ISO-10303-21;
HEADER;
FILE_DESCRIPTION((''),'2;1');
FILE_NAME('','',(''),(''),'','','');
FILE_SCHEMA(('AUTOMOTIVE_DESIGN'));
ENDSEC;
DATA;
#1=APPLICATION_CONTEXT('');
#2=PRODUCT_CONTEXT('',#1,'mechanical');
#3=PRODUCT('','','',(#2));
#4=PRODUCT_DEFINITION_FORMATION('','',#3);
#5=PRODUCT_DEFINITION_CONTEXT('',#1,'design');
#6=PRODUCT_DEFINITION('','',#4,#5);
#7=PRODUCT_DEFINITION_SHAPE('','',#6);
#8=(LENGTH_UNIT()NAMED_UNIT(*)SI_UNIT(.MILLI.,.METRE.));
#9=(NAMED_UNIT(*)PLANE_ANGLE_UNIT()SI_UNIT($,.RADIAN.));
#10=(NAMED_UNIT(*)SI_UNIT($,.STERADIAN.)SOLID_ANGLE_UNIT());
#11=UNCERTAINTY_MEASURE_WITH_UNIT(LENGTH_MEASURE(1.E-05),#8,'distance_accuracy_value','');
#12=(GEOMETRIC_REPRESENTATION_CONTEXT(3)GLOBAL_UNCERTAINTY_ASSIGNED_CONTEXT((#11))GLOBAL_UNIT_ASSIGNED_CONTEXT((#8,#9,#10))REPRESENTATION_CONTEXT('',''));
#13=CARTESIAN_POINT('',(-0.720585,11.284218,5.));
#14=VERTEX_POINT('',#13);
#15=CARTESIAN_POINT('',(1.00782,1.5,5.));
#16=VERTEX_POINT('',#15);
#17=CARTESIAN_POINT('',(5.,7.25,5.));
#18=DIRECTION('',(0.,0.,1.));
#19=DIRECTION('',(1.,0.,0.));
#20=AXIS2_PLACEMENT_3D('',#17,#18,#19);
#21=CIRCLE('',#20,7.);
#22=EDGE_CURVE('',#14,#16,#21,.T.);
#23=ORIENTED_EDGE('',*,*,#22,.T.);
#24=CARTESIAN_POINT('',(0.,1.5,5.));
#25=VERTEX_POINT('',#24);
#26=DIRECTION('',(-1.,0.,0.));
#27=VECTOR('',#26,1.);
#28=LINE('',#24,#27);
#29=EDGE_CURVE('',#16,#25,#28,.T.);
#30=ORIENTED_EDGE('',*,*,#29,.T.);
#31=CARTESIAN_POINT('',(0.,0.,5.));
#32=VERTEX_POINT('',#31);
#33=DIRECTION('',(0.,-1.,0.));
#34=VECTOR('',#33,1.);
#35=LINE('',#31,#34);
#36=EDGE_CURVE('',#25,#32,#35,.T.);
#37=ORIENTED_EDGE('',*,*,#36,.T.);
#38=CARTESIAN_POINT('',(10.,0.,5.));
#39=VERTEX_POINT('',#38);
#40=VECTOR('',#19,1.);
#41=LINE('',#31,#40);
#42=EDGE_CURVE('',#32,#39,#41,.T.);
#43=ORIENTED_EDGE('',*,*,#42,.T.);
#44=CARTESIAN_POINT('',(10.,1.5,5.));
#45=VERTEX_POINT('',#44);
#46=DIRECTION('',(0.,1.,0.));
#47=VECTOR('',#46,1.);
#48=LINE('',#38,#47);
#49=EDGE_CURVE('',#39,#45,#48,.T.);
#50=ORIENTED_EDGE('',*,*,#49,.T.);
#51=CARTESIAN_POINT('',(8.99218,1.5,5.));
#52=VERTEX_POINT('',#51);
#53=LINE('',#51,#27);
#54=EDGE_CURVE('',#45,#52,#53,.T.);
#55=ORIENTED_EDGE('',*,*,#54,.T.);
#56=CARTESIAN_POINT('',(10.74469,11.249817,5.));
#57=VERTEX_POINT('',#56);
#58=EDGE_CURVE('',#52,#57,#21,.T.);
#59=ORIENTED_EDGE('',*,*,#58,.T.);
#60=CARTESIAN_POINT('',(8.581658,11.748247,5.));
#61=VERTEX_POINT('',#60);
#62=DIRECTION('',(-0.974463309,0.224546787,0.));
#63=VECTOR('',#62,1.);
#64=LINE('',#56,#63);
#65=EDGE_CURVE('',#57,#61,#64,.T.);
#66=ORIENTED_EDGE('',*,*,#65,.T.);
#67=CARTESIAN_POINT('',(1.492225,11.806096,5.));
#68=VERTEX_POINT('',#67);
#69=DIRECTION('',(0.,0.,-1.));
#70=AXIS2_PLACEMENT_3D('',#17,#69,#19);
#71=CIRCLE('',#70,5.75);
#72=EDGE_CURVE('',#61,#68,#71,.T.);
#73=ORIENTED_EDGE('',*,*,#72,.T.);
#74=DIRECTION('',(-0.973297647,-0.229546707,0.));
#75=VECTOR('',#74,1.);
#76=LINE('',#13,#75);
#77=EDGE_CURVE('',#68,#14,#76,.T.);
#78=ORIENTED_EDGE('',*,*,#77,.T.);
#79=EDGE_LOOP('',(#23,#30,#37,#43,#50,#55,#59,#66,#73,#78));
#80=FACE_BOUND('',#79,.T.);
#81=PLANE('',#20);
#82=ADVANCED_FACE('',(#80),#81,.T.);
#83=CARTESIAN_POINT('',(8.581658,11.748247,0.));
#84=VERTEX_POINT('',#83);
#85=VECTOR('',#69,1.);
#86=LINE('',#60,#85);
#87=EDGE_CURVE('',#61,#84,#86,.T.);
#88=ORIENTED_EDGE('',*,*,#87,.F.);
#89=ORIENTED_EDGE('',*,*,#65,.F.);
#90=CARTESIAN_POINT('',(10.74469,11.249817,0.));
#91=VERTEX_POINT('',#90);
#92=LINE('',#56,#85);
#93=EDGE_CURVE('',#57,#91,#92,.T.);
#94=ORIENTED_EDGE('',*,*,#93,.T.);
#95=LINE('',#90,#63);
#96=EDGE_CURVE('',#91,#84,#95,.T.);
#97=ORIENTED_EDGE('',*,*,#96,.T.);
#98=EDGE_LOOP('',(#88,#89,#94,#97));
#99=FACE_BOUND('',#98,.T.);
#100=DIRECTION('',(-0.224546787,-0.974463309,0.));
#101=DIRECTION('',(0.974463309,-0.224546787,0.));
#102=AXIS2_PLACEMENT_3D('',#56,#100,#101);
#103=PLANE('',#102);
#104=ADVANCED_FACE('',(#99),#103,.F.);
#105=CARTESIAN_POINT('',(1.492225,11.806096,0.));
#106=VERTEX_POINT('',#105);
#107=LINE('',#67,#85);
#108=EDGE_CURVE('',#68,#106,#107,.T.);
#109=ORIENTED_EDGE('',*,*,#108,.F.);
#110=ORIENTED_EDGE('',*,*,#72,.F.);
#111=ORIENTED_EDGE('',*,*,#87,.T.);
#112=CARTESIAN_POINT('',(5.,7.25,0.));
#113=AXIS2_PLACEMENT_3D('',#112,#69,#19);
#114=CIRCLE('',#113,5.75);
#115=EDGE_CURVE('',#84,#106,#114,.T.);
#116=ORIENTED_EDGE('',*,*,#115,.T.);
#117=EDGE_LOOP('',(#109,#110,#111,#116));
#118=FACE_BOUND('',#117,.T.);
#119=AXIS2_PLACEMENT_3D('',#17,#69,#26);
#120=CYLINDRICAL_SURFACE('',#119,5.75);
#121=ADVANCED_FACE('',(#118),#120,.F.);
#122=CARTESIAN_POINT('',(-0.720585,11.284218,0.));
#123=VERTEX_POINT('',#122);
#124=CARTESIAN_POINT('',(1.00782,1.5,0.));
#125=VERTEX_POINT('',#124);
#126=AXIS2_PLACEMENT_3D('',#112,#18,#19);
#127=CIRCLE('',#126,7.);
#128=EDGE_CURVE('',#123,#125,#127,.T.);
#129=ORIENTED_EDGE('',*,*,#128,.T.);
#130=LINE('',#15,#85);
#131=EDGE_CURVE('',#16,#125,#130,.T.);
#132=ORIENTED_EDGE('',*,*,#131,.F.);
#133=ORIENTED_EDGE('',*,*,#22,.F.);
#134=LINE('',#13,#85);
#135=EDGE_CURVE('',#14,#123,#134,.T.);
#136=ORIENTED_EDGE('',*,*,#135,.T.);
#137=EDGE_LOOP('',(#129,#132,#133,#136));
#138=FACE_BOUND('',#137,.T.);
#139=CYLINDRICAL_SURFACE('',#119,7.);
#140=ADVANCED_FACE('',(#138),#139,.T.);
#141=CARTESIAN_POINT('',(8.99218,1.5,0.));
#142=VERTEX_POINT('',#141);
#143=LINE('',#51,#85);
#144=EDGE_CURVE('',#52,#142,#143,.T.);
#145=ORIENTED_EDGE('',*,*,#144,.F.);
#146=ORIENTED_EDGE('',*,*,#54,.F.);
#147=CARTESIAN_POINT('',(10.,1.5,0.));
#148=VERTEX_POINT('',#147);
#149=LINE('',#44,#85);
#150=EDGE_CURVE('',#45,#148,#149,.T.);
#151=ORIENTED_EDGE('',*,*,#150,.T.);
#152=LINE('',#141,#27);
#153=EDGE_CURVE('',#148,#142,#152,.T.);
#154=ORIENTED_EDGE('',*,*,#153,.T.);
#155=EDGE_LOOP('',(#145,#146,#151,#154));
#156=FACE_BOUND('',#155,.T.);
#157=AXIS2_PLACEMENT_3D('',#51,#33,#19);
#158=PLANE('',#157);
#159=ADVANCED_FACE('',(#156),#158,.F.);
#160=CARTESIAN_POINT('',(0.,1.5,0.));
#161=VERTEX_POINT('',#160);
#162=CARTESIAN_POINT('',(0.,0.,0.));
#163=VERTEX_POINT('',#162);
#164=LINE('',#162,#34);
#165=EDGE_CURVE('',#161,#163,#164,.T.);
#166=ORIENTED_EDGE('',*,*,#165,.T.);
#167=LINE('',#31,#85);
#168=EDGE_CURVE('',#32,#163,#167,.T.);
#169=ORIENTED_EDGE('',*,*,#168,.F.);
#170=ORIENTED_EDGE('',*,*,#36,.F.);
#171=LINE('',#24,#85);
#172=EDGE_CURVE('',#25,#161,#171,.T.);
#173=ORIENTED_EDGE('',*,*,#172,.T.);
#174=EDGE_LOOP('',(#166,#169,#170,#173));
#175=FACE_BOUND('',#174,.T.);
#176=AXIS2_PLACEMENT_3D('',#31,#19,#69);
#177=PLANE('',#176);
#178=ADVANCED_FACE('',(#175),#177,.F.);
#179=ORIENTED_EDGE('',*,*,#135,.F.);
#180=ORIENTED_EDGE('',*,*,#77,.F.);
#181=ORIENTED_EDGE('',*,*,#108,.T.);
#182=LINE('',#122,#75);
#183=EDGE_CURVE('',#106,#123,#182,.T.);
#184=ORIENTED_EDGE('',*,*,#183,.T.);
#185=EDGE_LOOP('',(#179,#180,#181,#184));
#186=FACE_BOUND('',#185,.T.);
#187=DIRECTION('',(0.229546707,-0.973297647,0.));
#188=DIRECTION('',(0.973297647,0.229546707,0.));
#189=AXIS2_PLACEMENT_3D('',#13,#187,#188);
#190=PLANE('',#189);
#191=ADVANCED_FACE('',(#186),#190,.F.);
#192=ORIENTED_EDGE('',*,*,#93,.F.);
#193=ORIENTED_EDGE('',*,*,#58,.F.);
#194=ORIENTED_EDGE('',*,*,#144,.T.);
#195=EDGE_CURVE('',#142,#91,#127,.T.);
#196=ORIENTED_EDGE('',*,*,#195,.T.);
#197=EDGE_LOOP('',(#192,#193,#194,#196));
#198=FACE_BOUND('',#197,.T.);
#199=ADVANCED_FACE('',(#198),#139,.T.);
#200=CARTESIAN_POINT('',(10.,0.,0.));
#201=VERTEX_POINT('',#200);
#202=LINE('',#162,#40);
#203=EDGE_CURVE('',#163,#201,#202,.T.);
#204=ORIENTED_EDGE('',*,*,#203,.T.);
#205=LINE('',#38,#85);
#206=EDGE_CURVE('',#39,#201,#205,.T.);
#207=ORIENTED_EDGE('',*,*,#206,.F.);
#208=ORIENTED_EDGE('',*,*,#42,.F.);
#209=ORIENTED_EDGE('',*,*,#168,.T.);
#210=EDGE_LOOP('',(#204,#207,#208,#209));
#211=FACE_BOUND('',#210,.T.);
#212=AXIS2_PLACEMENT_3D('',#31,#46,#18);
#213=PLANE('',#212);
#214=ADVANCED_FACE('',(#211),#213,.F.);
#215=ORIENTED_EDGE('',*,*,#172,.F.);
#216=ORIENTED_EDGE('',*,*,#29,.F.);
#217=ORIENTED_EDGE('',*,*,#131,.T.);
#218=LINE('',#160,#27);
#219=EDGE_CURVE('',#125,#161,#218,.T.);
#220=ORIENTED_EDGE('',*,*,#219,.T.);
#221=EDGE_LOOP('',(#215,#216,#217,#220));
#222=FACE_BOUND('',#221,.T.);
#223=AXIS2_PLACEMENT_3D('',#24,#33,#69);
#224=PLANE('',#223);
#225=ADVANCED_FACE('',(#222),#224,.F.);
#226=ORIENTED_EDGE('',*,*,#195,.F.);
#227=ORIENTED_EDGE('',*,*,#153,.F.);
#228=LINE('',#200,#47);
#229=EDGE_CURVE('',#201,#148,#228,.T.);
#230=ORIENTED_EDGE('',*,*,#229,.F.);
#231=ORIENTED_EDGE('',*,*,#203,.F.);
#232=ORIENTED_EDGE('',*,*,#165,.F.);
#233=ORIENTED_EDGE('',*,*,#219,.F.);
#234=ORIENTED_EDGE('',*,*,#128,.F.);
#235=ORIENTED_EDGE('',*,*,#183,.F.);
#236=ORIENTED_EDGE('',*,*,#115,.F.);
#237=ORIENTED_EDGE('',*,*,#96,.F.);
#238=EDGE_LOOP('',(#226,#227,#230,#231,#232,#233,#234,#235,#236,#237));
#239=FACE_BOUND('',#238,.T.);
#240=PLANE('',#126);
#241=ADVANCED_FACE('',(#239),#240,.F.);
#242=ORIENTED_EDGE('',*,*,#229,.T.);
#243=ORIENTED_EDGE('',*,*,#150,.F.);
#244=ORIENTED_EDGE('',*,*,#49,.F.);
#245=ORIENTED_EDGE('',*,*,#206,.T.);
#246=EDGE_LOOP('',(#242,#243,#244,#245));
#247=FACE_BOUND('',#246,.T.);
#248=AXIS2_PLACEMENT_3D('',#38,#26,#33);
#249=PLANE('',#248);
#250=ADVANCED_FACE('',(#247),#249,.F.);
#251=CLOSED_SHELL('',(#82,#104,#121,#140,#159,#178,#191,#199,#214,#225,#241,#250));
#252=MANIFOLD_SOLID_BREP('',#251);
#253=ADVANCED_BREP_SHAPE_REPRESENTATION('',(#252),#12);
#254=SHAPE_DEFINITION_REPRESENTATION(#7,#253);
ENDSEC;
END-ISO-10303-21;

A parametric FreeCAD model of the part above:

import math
import FreeCAD as App
import Part
import Sketcher

V = App.Vector

doc = App.newDocument("Part")
body = doc.addObject("PartDesign::Body", "Body")

# Sketch on XY plane
sketch1 = body.newObject("Sketcher::SketchObject", "Sketch")
sketch1.AttachmentSupport = (doc.getObject("XY_Plane"), [""])
sketch1.MapMode = "FlatFace"
sketch1.addGeometry([
    Part.LineSegment(V(10, 1.5, 0), V(8.99218, 1.5, 0)),  # 0
    Part.ArcOfCircle(Part.Circle(V(5, 7.25, 0), V(0, 0, 1), 7), math.radians(-55.228056), math.radians(34.848076)),  # 1
    Part.LineSegment(V(10.74469, 11.249817, 0), V(8.581658, 11.748247, 0)),  # 2
    Part.ArcOfCircle(Part.Circle(V(5, 7.25, 0), V(0, 0, 1), 5.75), math.radians(127.592967), math.radians(411.471995)),  # 3
    Part.LineSegment(V(1.492225, 11.806096, 0), V(-0.720585, 11.284218, 0)),  # 4
    Part.ArcOfCircle(Part.Circle(V(5, 7.25, 0), V(0, 0, 1), 7), math.radians(144.808099), math.radians(235.228056)),  # 5
    Part.LineSegment(V(1.00782, 1.5, 0), V(0, 1.5, 0)),  # 6
    Part.LineSegment(V(0, 1.5, 0), V(0, 0, 0)),  # 7
    Part.LineSegment(V(0, 0, 0), V(10, 0, 0)),  # 8
    Part.LineSegment(V(10, 0, 0), V(10, 1.5, 0)),  # 9
], False)
sketch1.addConstraint([
    Sketcher.Constraint("Coincident", 0, 2, 1, 1),
    Sketcher.Constraint("Coincident", 1, 2, 2, 1),
    Sketcher.Constraint("Coincident", 2, 2, 3, 2),
    Sketcher.Constraint("Coincident", 3, 1, 4, 1),
    Sketcher.Constraint("Coincident", 4, 2, 5, 1),
    Sketcher.Constraint("Coincident", 5, 2, 6, 1),
    Sketcher.Constraint("Coincident", 6, 2, 7, 1),
    Sketcher.Constraint("Coincident", 7, 2, 8, 1),
    Sketcher.Constraint("Coincident", 8, 2, 9, 1),
    Sketcher.Constraint("Coincident", 9, 2, 0, 1),
    Sketcher.Constraint("Horizontal", 0),
    Sketcher.Constraint("Horizontal", 6),
    Sketcher.Constraint("Vertical", 7),
    Sketcher.Constraint("Horizontal", 8),
    Sketcher.Constraint("Vertical", 9),
    Sketcher.Constraint("Coincident", 7, 2, -1, 1),
    Sketcher.Constraint("Coincident", 3, 3, 1, 3),
    Sketcher.Constraint("Coincident", 5, 3, 1, 3),
    Sketcher.Constraint("Equal", 1, 5),
    Sketcher.Constraint("Horizontal", 0, 2, 5, 2),
    Sketcher.Constraint("Equal", 0, 6),
    Sketcher.Constraint("Radius", 1, 7.0),
    Sketcher.Constraint("DistanceX", 8, 1, 8, 2, 10.0),
    Sketcher.Constraint("Radius", 3, 5.75),
    Sketcher.Constraint("DistanceY", 7, 2, 7, 1, 1.5),
    Sketcher.Constraint("DistanceY", -1, 1, 1, 3, 7.25),
    Sketcher.Constraint("DistanceX", -1, 1, 1, 2, 10.74469),
    Sketcher.Constraint("DistanceX", -1, 1, 2, 2, 8.581658),
    Sketcher.Constraint("DistanceY", 2, 2, 3, 1, 0.057849),
    Sketcher.Constraint("DistanceX", 4, 2, 3, 1, 2.212809),
])
pad1 = body.newObject("PartDesign::Pad", "Pad")
pad1.Profile = sketch1
pad1.Length = 5

doc.recompute()
